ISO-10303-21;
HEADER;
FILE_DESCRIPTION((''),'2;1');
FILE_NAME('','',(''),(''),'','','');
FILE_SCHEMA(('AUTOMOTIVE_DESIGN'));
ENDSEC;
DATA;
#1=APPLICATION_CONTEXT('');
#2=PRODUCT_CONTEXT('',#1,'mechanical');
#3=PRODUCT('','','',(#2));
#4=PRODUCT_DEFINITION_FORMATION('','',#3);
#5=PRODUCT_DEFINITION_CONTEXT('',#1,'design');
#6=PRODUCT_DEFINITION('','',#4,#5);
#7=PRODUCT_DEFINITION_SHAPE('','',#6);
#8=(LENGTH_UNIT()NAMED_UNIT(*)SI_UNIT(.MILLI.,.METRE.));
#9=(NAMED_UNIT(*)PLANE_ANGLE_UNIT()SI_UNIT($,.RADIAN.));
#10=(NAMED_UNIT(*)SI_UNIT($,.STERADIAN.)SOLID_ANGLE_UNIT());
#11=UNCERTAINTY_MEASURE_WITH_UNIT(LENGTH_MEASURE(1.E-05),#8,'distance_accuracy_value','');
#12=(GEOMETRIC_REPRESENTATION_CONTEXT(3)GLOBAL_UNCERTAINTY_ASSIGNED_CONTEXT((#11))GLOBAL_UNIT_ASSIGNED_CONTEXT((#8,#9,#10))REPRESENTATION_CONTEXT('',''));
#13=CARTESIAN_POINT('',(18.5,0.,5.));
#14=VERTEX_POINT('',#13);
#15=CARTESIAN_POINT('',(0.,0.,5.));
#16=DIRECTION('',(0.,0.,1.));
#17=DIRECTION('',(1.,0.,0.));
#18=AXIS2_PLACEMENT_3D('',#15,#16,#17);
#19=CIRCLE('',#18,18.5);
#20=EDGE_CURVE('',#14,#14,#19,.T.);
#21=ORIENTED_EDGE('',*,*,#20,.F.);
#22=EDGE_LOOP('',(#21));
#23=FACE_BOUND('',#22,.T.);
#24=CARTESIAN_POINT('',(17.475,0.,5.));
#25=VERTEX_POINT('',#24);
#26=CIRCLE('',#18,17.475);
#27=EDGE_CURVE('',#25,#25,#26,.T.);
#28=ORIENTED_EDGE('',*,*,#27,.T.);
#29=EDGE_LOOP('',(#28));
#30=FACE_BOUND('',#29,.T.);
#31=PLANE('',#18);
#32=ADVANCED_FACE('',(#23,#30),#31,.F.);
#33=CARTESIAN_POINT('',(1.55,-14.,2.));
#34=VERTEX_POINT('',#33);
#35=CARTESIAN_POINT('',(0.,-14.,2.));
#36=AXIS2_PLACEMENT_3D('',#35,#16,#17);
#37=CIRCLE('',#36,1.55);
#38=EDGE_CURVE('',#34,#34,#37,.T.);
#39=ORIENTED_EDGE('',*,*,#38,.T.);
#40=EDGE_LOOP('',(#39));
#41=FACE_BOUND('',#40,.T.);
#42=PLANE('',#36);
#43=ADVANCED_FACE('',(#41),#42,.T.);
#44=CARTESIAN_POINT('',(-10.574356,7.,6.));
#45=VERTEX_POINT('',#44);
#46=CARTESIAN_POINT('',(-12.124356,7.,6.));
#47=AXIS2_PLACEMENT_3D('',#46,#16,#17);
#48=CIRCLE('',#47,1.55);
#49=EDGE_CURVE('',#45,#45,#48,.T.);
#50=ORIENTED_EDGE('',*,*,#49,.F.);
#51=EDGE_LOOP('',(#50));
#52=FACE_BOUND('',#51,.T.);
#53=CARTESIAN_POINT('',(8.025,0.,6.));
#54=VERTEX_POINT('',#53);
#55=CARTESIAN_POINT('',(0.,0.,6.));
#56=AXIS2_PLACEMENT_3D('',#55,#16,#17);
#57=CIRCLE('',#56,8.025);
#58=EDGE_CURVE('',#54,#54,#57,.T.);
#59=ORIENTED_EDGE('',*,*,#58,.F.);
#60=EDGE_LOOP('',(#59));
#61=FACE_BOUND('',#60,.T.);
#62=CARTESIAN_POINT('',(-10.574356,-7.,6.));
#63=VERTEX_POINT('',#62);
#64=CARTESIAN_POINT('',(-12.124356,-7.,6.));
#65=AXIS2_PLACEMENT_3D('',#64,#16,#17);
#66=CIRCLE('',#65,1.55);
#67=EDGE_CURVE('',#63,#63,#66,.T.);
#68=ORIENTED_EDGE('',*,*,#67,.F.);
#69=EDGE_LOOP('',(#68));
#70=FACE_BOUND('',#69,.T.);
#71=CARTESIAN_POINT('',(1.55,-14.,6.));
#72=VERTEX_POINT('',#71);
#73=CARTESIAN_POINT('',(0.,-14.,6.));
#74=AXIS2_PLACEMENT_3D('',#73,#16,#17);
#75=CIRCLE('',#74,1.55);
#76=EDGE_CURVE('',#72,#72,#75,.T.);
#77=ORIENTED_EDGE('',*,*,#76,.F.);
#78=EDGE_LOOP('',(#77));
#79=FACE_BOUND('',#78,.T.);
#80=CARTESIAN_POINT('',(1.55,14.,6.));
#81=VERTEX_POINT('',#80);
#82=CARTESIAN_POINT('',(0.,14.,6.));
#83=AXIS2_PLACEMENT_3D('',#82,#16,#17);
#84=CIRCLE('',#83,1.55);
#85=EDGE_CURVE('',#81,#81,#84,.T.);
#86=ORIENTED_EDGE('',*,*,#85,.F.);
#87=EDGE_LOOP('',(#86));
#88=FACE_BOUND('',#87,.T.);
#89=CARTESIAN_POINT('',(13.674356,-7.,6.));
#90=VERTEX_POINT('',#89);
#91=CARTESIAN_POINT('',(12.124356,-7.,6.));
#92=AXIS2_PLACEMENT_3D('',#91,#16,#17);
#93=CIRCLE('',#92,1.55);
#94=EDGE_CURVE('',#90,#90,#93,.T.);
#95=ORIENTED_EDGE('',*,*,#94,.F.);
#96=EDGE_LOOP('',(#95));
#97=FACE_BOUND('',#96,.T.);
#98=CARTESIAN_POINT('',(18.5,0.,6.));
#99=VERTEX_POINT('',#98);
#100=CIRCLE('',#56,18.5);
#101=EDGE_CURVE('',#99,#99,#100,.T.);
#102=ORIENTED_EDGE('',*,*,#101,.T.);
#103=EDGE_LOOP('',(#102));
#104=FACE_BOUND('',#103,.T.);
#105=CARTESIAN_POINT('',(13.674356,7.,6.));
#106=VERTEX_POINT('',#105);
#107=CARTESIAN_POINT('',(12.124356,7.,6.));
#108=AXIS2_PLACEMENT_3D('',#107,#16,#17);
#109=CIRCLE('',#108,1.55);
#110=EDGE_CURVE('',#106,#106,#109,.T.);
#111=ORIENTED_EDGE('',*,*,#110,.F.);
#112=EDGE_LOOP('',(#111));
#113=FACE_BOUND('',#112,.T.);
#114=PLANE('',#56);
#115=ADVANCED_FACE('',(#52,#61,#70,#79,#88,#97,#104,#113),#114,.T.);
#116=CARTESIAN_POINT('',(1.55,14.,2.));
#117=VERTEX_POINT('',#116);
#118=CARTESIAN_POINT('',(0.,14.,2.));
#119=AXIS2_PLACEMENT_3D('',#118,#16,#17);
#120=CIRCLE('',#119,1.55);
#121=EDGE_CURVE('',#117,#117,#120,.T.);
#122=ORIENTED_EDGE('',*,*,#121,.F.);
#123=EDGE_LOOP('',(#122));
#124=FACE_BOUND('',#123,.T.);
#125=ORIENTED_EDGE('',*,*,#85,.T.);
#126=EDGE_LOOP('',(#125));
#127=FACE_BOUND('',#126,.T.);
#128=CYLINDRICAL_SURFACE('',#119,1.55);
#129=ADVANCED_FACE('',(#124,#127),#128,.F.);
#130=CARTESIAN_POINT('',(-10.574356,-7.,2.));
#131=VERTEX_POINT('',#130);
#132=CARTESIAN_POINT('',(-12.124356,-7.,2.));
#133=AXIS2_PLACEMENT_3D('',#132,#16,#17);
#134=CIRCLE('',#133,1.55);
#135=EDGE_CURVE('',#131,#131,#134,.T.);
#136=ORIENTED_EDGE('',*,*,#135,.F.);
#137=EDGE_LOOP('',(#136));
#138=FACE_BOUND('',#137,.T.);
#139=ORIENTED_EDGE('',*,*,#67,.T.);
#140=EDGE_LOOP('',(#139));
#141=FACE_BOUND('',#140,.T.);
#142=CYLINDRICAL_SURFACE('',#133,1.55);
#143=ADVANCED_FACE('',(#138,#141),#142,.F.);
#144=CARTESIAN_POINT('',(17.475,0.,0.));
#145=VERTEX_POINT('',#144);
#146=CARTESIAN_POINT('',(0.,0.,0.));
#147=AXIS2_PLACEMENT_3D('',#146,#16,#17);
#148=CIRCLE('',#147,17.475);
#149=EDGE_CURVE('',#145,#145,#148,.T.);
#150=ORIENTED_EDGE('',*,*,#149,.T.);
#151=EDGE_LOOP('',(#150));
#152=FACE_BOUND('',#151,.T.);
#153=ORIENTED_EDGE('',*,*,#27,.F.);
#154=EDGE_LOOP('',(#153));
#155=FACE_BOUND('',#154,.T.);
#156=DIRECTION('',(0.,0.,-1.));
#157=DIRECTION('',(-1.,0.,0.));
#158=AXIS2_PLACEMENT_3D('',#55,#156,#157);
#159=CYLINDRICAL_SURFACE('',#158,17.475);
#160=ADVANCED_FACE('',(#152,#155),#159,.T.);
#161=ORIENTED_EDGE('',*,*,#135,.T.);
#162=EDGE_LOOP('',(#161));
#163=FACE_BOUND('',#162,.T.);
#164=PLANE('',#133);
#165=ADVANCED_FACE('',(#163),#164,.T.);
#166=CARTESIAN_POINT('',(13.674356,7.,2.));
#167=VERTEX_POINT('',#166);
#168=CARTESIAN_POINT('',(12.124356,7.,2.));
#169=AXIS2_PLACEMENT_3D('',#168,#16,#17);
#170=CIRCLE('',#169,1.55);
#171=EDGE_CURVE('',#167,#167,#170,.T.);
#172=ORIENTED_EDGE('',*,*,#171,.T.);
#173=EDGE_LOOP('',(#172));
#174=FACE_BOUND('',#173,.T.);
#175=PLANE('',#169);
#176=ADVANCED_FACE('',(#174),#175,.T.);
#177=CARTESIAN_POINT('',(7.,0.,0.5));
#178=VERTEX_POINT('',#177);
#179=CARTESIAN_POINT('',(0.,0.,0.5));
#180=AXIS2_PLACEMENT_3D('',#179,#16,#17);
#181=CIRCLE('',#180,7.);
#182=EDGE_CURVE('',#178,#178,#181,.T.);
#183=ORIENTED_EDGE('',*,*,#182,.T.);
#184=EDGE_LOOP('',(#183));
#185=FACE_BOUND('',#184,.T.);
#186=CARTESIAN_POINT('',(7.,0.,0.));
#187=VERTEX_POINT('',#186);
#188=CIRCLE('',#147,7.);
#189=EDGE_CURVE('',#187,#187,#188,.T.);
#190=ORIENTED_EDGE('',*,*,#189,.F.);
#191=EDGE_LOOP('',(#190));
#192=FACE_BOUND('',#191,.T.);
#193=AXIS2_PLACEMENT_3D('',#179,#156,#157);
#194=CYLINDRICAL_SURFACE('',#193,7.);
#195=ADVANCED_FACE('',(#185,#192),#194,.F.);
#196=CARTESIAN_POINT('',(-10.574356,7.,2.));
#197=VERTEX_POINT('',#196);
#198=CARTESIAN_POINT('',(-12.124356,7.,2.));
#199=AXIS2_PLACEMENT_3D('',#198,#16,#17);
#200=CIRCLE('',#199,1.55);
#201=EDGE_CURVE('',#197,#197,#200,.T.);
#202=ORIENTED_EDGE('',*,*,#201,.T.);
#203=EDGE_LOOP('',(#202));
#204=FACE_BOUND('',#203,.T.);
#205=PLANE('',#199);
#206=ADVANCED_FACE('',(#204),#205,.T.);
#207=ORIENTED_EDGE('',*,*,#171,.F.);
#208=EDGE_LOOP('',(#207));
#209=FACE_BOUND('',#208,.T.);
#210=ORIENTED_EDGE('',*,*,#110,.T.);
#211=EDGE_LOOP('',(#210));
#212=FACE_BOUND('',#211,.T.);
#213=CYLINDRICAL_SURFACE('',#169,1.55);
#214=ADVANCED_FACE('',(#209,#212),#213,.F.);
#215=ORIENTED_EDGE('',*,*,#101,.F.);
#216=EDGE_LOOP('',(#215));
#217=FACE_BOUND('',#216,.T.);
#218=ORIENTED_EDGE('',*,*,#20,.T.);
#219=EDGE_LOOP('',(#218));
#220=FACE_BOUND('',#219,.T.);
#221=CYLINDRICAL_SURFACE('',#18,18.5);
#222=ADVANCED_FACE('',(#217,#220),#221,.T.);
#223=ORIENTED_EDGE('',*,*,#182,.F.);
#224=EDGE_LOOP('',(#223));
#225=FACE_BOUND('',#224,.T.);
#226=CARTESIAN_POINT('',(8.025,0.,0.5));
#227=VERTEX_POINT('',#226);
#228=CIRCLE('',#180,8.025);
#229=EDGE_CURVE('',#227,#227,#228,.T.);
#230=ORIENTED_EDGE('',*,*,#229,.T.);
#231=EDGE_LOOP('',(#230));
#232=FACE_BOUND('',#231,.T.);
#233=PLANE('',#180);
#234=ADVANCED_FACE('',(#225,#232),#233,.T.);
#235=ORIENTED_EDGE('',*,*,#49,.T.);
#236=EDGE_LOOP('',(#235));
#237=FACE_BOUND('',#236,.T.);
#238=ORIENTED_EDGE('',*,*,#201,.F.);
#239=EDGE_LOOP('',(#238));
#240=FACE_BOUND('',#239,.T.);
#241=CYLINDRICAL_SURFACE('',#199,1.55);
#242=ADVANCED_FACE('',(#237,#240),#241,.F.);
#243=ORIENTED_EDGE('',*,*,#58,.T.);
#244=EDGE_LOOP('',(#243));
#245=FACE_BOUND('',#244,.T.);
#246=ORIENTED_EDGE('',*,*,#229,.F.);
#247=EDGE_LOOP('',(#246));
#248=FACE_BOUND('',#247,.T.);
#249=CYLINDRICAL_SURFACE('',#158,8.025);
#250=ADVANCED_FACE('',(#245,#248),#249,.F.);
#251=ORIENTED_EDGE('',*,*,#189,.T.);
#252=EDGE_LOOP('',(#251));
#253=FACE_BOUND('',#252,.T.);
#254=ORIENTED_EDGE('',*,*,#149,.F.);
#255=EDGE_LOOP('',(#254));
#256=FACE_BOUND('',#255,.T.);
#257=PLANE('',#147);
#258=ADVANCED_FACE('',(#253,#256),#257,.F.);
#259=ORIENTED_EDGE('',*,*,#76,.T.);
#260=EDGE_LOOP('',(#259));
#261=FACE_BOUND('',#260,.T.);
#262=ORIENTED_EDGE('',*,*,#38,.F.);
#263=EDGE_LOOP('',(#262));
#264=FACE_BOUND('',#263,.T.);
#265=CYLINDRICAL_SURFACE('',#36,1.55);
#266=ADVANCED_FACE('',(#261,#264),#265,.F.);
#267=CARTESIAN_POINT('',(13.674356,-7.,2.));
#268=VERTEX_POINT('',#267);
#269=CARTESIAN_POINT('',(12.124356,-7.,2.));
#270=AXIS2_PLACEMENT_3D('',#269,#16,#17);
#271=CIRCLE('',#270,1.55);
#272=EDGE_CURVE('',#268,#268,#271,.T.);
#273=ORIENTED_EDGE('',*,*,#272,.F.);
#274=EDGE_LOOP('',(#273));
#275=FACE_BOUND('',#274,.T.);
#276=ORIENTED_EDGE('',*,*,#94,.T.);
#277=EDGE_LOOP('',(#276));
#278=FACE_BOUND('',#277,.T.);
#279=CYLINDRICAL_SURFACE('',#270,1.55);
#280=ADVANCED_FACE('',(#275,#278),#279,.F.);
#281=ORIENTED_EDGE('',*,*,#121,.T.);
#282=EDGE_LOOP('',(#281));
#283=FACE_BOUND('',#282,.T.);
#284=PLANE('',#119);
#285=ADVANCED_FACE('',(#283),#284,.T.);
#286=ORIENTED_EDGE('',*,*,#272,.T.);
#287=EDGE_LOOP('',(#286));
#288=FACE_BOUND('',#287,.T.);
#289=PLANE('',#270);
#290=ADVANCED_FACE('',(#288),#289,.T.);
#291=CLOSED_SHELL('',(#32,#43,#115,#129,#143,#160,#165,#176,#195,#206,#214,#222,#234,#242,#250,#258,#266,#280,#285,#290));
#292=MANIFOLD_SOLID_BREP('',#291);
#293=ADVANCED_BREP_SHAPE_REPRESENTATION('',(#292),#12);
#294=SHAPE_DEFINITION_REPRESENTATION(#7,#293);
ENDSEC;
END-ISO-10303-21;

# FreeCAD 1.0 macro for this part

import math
import FreeCAD as App
import Part
import Sketcher

doc = App.newDocument("Part")
body = doc.addObject("PartDesign::Body", "Body")

sketch1 = body.newObject("Sketcher::SketchObject", "Sketch")
sketch1.AttachmentSupport = (doc.getObject("XY_Plane"), [""])
sketch1.MapMode = "FlatFace"
sketch1.addGeometry([
    Part.Circle(App.Vector(0, 0, 0), App.Vector(0, 0, 1), 17),
    Part.Circle(App.Vector(0, 0, 0), App.Vector(0, 0, 1), 8),
], False)
sketch1.addConstraint([
    Sketcher.Constraint("Coincident", 0, 3, -1, 1),
    Sketcher.Constraint("Coincident", 1, 3, -1, 1),
    Sketcher.Constraint("Diameter", 0, 34.95),
    Sketcher.Constraint("Diameter", 1, 16.05),
])
pad1 = body.newObject("PartDesign::Pad", "Pad")
pad1.Profile = sketch1
pad1.Length = 6

sketch2 = body.newObject("Sketcher::SketchObject", "Sketch001")
sketch2.AttachmentSupport = (doc.getObject("XY_Plane"), [""])
sketch2.MapMode = "FlatFace"
sketch2.AttachmentOffset = App.Placement(App.Vector(0, 0, 6), App.Rotation())
sketch2.addGeometry([
    Part.Circle(App.Vector(-12.1, 7, 0), App.Vector(0, 0, 1), 1.6),
    Part.ArcOfCircle(Part.Circle(App.Vector(0, 14, 0), App.Vector(0, 0, 1), 1.6), math.radians(90), math.radians(270)),
    Part.ArcOfCircle(Part.Circle(App.Vector(0, 14, 0), App.Vector(0, 0, 1), 1.5), math.radians(-90), math.radians(0)),
    Part.ArcOfCircle(Part.Circle(App.Vector(0, 14, 0), App.Vector(0, 0, 1), 1.5), math.radians(0), math.radians(90)),
    Part.Circle(App.Vector(12.1, 7, 0), App.Vector(0, 0, 1), 1.6),
    Part.Circle(App.Vector(12.1, -7, 0), App.Vector(0, 0, 1), 1.6),
    Part.Circle(App.Vector(0, -14, 0), App.Vector(0, 0, 1), 1.6),
    Part.Circle(App.Vector(-12.1, -7, 0), App.Vector(0, 0, 1), 1.6),
], False)
sketch2.addConstraint([
    Sketcher.Constraint("Tangent", 1, 2, 2, 1),
    Sketcher.Constraint("Tangent", 2, 2, 3, 1),
    Sketcher.Constraint("Tangent", 3, 2, 1, 1),
    Sketcher.Constraint("Equal", 0, 1),
    Sketcher.Constraint("Equal", 3, 4),
    Sketcher.Constraint("Equal", 4, 5),
    Sketcher.Constraint("Equal", 5, 6),
    Sketcher.Constraint("Equal", 6, 7),
    Sketcher.Constraint("Symmetric", 0, 3, 5, 3, -1, 1),
    Sketcher.Constraint("Symmetric", 1, 3, 6, 3, -1, 1),
    Sketcher.Constraint("Symmetric", 4, 3, 7, 3, -1, 1),
    Sketcher.Constraint("Symmetric", 0, 3, 4, 3, -2),
    Sketcher.Constraint("PointOnObject", 1, 3, -2),
    Sketcher.Constraint("PointOnObject", 1, 2, -2),
    Sketcher.Constraint("PointOnObject", 3, 2, -2),
    Sketcher.Constraint("Horizontal", 3, 3, 2, 2),
    Sketcher.Constraint("Diameter", 0, 3.1),
    Sketcher.Constraint("DistanceY", -1, 1, 0, 3, 7.0),
    Sketcher.Constraint("DistanceY", -1, 1, 1, 3, 14.0),
    Sketcher.Constraint("DistanceX", 0, 3, 4, 3, 24.248711),
])
pocket1 = body.newObject("PartDesign::Pocket", "Pocket")
pocket1.Profile = sketch2
pocket1.Length = 4

sketch3 = body.newObject("Sketcher::SketchObject", "Sketch002")
sketch3.AttachmentSupport = (doc.getObject("XY_Plane"), [""])
sketch3.MapMode = "FlatFace"
sketch3.AttachmentOffset = App.Placement(App.Vector(0, 0, 6), App.Rotation())
sketch3.addGeometry([
    Part.Circle(App.Vector(0, 0, 0), App.Vector(0, 0, 1), 18),
    Part.Circle(App.Vector(0, 0, 0), App.Vector(0, 0, 1), 17),
], False)
sketch3.addConstraint([
    Sketcher.Constraint("Coincident", 0, 3, -1, 1),
    Sketcher.Constraint("Coincident", 1, 3, -1, 1),
    Sketcher.Constraint("Diameter", 0, 37.0),
    Sketcher.Constraint("Diameter", 1, 34.5),
])
pad2 = body.newObject("PartDesign::Pad", "Pad001")
pad2.Profile = sketch3
pad2.Length = 1
pad2.Reversed = True

sketch4 = body.newObject("Sketcher::SketchObject", "Sketch003")
sketch4.AttachmentSupport = (doc.getObject("XY_Plane"), [""])
sketch4.MapMode = "FlatFace"
sketch4.addGeometry([
    Part.Circle(App.Vector(0, 0, 0), App.Vector(0, 0, 1), 8),
    Part.Circle(App.Vector(0, 0, 0), App.Vector(0, 0, 1), 7),
], False)
sketch4.addConstraint([
    Sketcher.Constraint("Coincident", 0, 3, -1, 1),
    Sketcher.Constraint("Coincident", 1, 3, -1, 1),
    Sketcher.Constraint("Diameter", 1, 14.0),
    Sketcher.Constraint("Diameter", 0, 16.5),
])
pad3 = body.newObject("PartDesign::Pad", "Pad002")
pad3.Profile = sketch4
pad3.Length = 0.5

doc.recompute()
